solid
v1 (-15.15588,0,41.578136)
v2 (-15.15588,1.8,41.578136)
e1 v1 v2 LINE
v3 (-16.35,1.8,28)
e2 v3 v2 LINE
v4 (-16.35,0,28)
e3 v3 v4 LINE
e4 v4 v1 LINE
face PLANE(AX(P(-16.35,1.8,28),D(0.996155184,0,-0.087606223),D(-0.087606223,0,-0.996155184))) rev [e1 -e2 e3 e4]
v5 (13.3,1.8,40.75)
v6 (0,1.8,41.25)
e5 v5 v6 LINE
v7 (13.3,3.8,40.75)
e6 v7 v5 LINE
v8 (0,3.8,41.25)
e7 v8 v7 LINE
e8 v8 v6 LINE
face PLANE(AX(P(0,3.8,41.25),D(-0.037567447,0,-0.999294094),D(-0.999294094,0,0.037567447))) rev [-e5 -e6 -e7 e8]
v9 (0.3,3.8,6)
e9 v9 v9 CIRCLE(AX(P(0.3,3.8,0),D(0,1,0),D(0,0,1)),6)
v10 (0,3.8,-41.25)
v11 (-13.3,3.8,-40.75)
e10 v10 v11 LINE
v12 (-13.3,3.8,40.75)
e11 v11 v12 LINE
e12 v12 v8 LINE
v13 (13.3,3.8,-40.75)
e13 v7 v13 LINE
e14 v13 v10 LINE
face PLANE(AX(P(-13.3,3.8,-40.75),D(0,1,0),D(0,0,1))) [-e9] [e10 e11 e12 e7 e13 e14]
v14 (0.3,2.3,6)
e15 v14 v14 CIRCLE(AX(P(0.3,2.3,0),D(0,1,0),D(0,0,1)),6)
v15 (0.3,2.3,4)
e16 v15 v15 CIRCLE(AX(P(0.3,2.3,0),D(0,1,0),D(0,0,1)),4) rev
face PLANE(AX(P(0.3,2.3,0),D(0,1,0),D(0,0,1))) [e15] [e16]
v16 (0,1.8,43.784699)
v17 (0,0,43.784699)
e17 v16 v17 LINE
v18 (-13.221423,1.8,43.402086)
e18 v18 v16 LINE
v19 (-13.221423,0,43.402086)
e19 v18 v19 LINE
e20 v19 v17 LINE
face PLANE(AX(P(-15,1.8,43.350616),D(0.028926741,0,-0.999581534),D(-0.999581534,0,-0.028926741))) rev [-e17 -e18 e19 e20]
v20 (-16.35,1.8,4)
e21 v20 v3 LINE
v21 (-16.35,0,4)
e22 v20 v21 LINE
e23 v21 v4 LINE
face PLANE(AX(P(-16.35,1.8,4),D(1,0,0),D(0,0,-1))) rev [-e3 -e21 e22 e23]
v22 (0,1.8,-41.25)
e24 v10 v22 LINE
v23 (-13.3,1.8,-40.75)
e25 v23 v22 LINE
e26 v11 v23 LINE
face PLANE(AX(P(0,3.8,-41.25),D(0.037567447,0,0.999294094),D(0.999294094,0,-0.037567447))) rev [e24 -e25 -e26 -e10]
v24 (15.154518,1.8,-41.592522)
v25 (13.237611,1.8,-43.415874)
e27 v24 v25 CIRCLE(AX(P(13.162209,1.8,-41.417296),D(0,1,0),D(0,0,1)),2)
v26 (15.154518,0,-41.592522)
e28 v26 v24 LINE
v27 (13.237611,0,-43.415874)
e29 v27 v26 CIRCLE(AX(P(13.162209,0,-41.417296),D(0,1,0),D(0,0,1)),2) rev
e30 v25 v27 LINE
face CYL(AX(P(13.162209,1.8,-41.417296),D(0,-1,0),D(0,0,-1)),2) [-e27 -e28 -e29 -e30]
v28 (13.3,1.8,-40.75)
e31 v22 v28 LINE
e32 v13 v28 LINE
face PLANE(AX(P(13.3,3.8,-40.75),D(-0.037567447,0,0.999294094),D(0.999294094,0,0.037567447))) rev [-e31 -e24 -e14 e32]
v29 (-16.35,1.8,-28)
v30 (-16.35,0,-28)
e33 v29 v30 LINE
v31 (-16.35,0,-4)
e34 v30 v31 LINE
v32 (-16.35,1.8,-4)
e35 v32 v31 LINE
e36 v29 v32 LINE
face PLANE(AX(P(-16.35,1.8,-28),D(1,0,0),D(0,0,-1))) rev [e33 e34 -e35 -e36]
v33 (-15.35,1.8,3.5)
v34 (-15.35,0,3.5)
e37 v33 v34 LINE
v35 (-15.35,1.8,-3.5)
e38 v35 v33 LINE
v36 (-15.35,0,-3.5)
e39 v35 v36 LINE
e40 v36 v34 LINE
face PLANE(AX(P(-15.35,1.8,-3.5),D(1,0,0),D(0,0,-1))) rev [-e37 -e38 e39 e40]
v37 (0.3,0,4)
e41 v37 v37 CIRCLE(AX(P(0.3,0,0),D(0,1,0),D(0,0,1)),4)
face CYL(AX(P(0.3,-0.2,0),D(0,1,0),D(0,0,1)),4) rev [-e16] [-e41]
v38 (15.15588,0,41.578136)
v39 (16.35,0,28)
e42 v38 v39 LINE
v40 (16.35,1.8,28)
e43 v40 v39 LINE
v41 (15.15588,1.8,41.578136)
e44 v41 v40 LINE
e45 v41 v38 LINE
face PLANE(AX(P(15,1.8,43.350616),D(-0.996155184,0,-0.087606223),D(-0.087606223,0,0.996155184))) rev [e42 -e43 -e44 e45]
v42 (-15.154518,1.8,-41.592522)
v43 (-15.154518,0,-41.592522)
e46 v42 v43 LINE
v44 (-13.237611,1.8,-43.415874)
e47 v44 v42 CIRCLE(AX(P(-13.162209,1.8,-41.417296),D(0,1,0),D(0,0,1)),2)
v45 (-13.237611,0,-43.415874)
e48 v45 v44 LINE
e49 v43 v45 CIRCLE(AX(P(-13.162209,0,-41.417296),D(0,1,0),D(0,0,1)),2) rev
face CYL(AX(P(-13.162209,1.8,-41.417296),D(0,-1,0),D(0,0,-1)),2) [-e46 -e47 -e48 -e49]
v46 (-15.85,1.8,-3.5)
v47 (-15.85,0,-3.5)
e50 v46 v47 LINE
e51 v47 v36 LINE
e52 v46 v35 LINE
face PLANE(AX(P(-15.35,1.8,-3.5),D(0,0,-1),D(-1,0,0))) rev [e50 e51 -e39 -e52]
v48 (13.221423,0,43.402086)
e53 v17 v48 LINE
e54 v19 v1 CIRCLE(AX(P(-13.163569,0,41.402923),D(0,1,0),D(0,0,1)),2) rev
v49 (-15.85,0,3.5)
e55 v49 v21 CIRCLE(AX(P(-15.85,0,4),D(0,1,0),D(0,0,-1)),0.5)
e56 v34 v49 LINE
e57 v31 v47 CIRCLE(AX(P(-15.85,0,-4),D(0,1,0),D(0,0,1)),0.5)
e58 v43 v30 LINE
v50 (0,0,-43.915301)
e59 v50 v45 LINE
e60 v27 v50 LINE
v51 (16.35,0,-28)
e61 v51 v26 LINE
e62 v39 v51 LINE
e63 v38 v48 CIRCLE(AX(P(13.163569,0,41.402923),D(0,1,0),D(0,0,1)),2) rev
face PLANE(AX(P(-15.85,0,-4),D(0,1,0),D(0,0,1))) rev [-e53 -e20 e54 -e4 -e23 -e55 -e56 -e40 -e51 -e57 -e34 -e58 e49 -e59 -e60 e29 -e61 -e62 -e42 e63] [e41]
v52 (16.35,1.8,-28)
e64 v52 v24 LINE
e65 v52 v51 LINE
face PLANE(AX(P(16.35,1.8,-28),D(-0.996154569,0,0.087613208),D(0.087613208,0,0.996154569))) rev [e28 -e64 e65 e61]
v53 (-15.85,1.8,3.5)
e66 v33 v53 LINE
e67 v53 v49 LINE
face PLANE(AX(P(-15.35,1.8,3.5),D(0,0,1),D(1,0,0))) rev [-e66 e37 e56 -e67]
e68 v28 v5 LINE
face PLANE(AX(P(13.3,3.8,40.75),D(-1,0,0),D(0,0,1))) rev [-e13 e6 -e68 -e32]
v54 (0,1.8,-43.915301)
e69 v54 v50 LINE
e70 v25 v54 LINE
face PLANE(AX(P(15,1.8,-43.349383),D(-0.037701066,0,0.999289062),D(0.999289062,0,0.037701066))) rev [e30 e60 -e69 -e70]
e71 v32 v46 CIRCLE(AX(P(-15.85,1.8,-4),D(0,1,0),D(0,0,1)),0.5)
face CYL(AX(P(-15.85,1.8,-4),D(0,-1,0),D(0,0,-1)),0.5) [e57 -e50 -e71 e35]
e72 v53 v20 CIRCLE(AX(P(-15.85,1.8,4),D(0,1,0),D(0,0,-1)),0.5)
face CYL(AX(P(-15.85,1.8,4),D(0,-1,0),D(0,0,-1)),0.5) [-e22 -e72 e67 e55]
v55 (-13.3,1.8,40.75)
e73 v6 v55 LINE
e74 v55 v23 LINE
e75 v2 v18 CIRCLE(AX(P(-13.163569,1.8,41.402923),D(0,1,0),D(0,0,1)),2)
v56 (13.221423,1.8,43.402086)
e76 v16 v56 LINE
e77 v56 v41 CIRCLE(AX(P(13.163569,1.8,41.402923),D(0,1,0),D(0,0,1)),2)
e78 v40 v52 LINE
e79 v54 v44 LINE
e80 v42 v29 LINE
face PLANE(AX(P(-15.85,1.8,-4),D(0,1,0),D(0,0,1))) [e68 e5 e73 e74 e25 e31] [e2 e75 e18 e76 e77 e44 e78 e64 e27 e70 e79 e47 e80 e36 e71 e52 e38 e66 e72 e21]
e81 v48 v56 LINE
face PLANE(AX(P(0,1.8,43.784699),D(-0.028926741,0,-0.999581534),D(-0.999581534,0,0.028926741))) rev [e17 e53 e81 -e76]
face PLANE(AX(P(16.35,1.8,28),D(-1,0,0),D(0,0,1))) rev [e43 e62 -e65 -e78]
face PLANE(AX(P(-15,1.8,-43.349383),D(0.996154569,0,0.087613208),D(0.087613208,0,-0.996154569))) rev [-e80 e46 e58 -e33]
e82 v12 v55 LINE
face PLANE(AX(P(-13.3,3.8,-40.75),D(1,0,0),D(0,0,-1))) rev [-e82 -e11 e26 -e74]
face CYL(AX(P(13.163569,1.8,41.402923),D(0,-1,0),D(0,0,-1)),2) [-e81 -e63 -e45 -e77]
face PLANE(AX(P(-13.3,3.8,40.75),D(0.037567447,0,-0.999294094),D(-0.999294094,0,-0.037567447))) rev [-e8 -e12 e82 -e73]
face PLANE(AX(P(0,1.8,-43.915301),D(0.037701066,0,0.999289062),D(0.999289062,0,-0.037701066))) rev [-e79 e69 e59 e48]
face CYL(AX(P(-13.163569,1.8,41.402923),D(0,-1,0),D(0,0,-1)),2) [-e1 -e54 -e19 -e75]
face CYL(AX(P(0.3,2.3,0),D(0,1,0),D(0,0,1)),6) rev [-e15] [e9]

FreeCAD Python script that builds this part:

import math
import FreeCAD as App
import Part
import Sketcher
from FreeCAD import Vector


def edges_at(feature, points):
    """Names of the edges that pass closest to the given points."""
    edges = feature.Shape.Edges
    near = lambda p: min(range(len(edges)), key=lambda i: edges[i].distToShape(Part.Vertex(*p))[0])
    return sorted({f"Edge{near(p) + 1}" for p in points})

doc = App.newDocument("Part")
body = doc.addObject("PartDesign::Body", "Body")

sketch1 = doc.addObject("Sketcher::SketchObject", "Sketch")
body.addObject(sketch1)
sketch1.AttachmentSupport = (doc.XZ_Plane, [""])
sketch1.MapMode = "FlatFace"
sketch1.addGeometry([
    Part.LineSegment(Vector(-15, -43.349383, 0), Vector(-16.35, -28, 0)),
    Part.LineSegment(Vector(-16.35, -28, 0), Vector(-16.35, -4, 0)),
    Part.ArcOfCircle(Part.Circle(Vector(-15.85, -4, 0), Vector(0, 0, 1), 0.5), math.radians(90), math.radians(180)),
    Part.LineSegment(Vector(-15.85, -3.5, 0), Vector(-15.35, -3.5, 0)),
    Part.LineSegment(Vector(-15.35, -3.5, 0), Vector(-15.35, 3.5, 0)),
    Part.LineSegment(Vector(-15.35, 3.5, 0), Vector(-15.85, 3.5, 0)),
    Part.ArcOfCircle(Part.Circle(Vector(-15.85, 4, 0), Vector(0, 0, 1), 0.5), math.radians(180), math.radians(270)),
    Part.LineSegment(Vector(-16.35, 4, 0), Vector(-16.35, 28, 0)),
    Part.LineSegment(Vector(-16.35, 28, 0), Vector(-15, 43.350616, 0)),
    Part.LineSegment(Vector(-15, 43.350616, 0), Vector(0, 43.784699, 0)),
    Part.LineSegment(Vector(0, 43.784699, 0), Vector(15, 43.350616, 0)),
    Part.LineSegment(Vector(15, 43.350616, 0), Vector(16.35, 28, 0)),
    Part.LineSegment(Vector(16.35, 28, 0), Vector(16.35, -28, 0)),
    Part.LineSegment(Vector(16.35, -28, 0), Vector(15, -43.349383, 0)),
    Part.LineSegment(Vector(15, -43.349383, 0), Vector(0, -43.915301, 0)),
    Part.LineSegment(Vector(0, -43.915301, 0), Vector(-15, -43.349383, 0)),
], False)
sketch1.addConstraint([
    Sketcher.Constraint("Coincident", 0, 2, 1, 1),
    Sketcher.Constraint("Tangent", 1, 2, 2, 2),
    Sketcher.Constraint("Tangent", 2, 1, 3, 1),
    Sketcher.Constraint("Coincident", 3, 2, 4, 1),
    Sketcher.Constraint("Coincident", 4, 2, 5, 1),
    Sketcher.Constraint("Tangent", 5, 2, 6, 2),
    Sketcher.Constraint("Tangent", 6, 1, 7, 1),
    Sketcher.Constraint("Coincident", 7, 2, 8, 1),
    Sketcher.Constraint("Coincident", 8, 2, 9, 1),
    Sketcher.Constraint("Coincident", 9, 2, 10, 1),
    Sketcher.Constraint("Coincident", 10, 2, 11, 1),
    Sketcher.Constraint("Coincident", 11, 2, 12, 1),
    Sketcher.Constraint("Coincident", 12, 2, 13, 1),
    Sketcher.Constraint("Coincident", 13, 2, 14, 1),
    Sketcher.Constraint("Coincident", 14, 2, 15, 1),
    Sketcher.Constraint("Coincident", 15, 2, 0, 1),
    Sketcher.Constraint("Vertical", 1),
    Sketcher.Constraint("Horizontal", 3),
    Sketcher.Constraint("Vertical", 4),
    Sketcher.Constraint("Horizontal", 5),
    Sketcher.Constraint("Vertical", 7),
    Sketcher.Constraint("Vertical", 12),
    Sketcher.Constraint("Equal", 2, 6),
    Sketcher.Constraint("Symmetric", 0, 2, 11, 2, -1, 1),
    Sketcher.Constraint("Symmetric", 7, 2, 12, 2, -1, 1),
    Sketcher.Constraint("Symmetric", 8, 2, 10, 2, -2),
    Sketcher.Constraint("Symmetric", 13, 2, 15, 2, -2),
    Sketcher.Constraint("PointOnObject", 9, 2, -2),
    Sketcher.Constraint("PointOnObject", 14, 2, -2),
    Sketcher.Constraint("Horizontal", 7, 2, 11, 2),
    Sketcher.Constraint("Vertical", 10, 2, 13, 2),
    Sketcher.Constraint("Equal", 1, 7),
    Sketcher.Constraint("Radius", 2, 0.5),
    Sketcher.Constraint("DistanceY", 1, 1, 1, 2, 24.0),
    Sketcher.Constraint("DistanceY", 4, 1, 4, 2, 7.0),
    Sketcher.Constraint("DistanceX", 3, 1, 3, 2, 0.5),
    Sketcher.Constraint("DistanceX", 8, 2, -1, 1, 15.0),
    Sketcher.Constraint("DistanceX", 7, 2, 11, 2, 32.7),
    Sketcher.Constraint("DistanceY", -1, 1, 9, 2, 43.784699),
    Sketcher.Constraint("DistanceY", 14, 2, -1, 1, 43.915301),
    Sketcher.Constraint("Distance", 9, 15.00628),
    Sketcher.Constraint("Distance", 14, 15.010672),
])
pad1 = doc.addObject("PartDesign::Pad", "Pad")
body.addObject(pad1)
pad1.Profile = sketch1
pad1.Length = 1.8
pad1.Reversed = True

sketch2 = doc.addObject("Sketcher::SketchObject", "Sketch001")
body.addObject(sketch2)
sketch2.AttachmentSupport = (doc.XZ_Plane, [""])
sketch2.MapMode = "FlatFace"
sketch2.addGeometry([
    Part.LineSegment(Vector(-13.3, -40.75, 0), Vector(-13.3, 40.75, 0)),
    Part.LineSegment(Vector(-13.3, 40.75, 0), Vector(0, 41.25, 0)),
    Part.LineSegment(Vector(0, 41.25, 0), Vector(13.3, 40.75, 0)),
    Part.LineSegment(Vector(13.3, 40.75, 0), Vector(13.3, -40.75, 0)),
    Part.LineSegment(Vector(13.3, -40.75, 0), Vector(0, -41.25, 0)),
    Part.LineSegment(Vector(0, -41.25, 0), Vector(-13.3, -40.75, 0)),
], False)
sketch2.addConstraint([
    Sketcher.Constraint("Coincident", 0, 2, 1, 1),
    Sketcher.Constraint("Coincident", 1, 2, 2, 1),
    Sketcher.Constraint("Coincident", 2, 2, 3, 1),
    Sketcher.Constraint("Coincident", 3, 2, 4, 1),
    Sketcher.Constraint("Coincident", 4, 2, 5, 1),
    Sketcher.Constraint("Coincident", 5, 2, 0, 1),
    Sketcher.Constraint("Vertical", 0),
    Sketcher.Constraint("Vertical", 3),
    Sketcher.Constraint("Symmetric", 0, 2, 3, 2, -1, 1),
    Sketcher.Constraint("Symmetric", 1, 2, 4, 2, -1, 1),
    Sketcher.Constraint("PointOnObject", 1, 2, -2),
    Sketcher.Constraint("Parallel", 2, 5),
    Sketcher.Constraint("Horizontal", 0, 2, 2, 2),
    Sketcher.Constraint("DistanceY", 0, 1, 0, 2, 81.5),
    Sketcher.Constraint("DistanceY", 3, 2, 1, 2, 82.0),
    Sketcher.Constraint("DistanceX", 0, 2, -1, 1, 13.3),
])
pad2 = doc.addObject("PartDesign::Pad", "Pad001")
body.addObject(pad2)
pad2.Profile = sketch2
pad2.Length = 3.8
pad2.Reversed = True
doc.recompute()

fillet = doc.addObject("PartDesign::Fillet", "Fillet")
body.addObject(fillet)
fillet.Base = (pad2, edges_at(pad2, [
    (-15, 0.9, -43.349),
    (15, 0.9, -43.349),
    (15, 0.9, 43.351),
    (-15, 0.9, 43.351),
]))
fillet.Radius = 2

sketch3 = doc.addObject("Sketcher::SketchObject", "Sketch002")
body.addObject(sketch3)
sketch3.AttachmentSupport = (doc.XZ_Plane, [""])
sketch3.MapMode = "FlatFace"
sketch3.AttachmentOffset = App.Placement(Vector(0, 0, -3.8), App.Rotation())
sketch3.addGeometry(Part.Circle(Vector(0.3, 0, 0), Vector(0, 0, 1), 4), False)
sketch3.addConstraint([
    Sketcher.Constraint("PointOnObject", 0, 3, -1),
    Sketcher.Constraint("Diameter", 0, 8.0),
    Sketcher.Constraint("DistanceX", -1, 1, 0, 3, 0.3),
])
pocket1 = doc.addObject("PartDesign::Pocket", "Pocket")
body.addObject(pocket1)
pocket1.Profile = sketch3
pocket1.Length = 4
pocket1.Reversed = True

sketch4 = doc.addObject("Sketcher::SketchObject", "Sketch003")
body.addObject(sketch4)
sketch4.AttachmentSupport = (doc.XZ_Plane, [""])
sketch4.MapMode = "FlatFace"
sketch4.AttachmentOffset = App.Placement(Vector(0, 0, -3.8), App.Rotation())
sketch4.addGeometry(Part.Circle(Vector(0.3, 0, 0), Vector(0, 0, 1), 6), False)
sketch4.addConstraint([
    Sketcher.Constraint("PointOnObject", 0, 3, -1),
    Sketcher.Constraint("Diameter", 0, 12.0),
    Sketcher.Constraint("DistanceX", -1, 1, 0, 3, 0.3),
])
pocket2 = doc.addObject("PartDesign::Pocket", "Pocket001")
body.addObject(pocket2)
pocket2.Profile = sketch4
pocket2.Length = 1.5
pocket2.Reversed = True

doc.recompute()
